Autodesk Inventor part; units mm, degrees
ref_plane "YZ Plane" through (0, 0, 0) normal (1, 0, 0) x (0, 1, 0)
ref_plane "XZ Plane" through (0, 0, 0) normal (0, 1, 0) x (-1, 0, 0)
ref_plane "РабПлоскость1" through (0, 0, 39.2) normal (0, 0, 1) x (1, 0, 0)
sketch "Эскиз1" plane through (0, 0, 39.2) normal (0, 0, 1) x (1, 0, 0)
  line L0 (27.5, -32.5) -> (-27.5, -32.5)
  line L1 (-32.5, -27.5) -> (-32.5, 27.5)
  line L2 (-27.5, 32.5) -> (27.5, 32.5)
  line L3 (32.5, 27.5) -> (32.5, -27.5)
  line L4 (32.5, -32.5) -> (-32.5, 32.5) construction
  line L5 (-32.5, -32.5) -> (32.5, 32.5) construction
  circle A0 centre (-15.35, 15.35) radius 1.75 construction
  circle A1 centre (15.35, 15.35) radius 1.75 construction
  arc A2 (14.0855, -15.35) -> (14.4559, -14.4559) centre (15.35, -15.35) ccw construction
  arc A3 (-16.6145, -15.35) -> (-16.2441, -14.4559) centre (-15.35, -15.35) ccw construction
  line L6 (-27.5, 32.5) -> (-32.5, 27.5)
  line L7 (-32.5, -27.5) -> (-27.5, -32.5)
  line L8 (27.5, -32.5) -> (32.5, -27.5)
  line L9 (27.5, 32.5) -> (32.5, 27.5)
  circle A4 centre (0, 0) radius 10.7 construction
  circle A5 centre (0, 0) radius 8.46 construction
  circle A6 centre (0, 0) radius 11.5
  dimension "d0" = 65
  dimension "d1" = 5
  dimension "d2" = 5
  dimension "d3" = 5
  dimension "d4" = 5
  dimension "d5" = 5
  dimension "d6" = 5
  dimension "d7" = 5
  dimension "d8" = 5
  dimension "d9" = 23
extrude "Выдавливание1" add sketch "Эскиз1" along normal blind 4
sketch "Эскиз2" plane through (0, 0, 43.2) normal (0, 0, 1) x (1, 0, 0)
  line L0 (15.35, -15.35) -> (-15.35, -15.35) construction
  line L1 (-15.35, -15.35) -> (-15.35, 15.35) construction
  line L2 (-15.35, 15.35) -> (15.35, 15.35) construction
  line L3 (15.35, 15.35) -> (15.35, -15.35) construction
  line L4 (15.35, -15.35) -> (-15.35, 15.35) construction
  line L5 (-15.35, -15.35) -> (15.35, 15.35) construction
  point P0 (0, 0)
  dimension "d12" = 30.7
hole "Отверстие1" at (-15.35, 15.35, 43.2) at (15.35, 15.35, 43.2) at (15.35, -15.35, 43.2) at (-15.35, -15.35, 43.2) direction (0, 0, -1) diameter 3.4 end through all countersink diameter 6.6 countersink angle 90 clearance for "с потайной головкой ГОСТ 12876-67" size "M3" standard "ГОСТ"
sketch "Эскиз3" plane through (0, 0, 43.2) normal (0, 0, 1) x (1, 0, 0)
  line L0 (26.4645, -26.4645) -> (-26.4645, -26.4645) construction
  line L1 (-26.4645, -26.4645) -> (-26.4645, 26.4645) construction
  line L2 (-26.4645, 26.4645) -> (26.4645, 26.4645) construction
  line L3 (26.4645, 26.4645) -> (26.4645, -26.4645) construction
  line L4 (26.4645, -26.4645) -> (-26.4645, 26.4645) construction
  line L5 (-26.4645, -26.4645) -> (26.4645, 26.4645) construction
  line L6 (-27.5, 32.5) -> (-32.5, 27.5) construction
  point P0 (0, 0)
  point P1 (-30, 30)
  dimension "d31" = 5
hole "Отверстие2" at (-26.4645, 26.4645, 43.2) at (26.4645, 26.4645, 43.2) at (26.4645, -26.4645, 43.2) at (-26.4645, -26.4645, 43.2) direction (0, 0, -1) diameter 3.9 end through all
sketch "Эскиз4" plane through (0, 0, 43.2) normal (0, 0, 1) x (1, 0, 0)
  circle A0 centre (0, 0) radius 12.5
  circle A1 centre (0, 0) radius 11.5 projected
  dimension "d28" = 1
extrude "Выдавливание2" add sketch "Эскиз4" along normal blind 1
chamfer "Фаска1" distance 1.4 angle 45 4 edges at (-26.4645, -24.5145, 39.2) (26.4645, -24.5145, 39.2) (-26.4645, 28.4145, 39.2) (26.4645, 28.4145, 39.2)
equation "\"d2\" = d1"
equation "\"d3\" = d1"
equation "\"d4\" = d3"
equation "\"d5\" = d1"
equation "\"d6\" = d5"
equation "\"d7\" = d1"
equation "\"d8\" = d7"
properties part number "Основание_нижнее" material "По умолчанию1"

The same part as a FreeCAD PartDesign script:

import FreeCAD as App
import Part
import Sketcher


def edges_at(feature, points):
    """Names of the edges that pass closest to the given points."""
    edges = feature.Shape.Edges
    near = lambda p: min(range(len(edges)), key=lambda i: edges[i].distToShape(Part.Vertex(*p))[0])
    return sorted({f"Edge{near(p) + 1}" for p in points})


def add_polygon(sketch, points):
    """Adds a closed chain of lines whose ends are joined by coincident constraints."""
    first, n = sketch.GeometryCount, len(points)
    for a, b in zip(points, points[1:] + points[:1]):
        sketch.addGeometry(Part.LineSegment(App.Vector(*a, 0), App.Vector(*b, 0)), False)
    for i in range(n):
        sketch.addConstraint(Sketcher.Constraint("Coincident", first + i, 2, first + (i + 1) % n, 1))

doc = App.newDocument("Part")
body = doc.addObject("PartDesign::Body", "Body")

sketch1 = doc.addObject("Sketcher::SketchObject", "Sketch")
body.addObject(sketch1)
sketch1.AttachmentSupport = (doc.XY_Plane, [""])
sketch1.MapMode = "FlatFace"
sketch1.AttachmentOffset = App.Placement(App.Vector(0, 0, 39.2), App.Rotation())
add_polygon(sketch1, [(-28, -32), (28, -32), (32, -28), (32, 28), (28, 32), (-28, 32), (-32, 28), (-32, -28)])
sketch1.addGeometry(Part.Circle(App.Vector(0, 0, 0), App.Vector(0, 0, 1), 12), False)
sketch1.addConstraint(Sketcher.Constraint("Horizontal", 0))
sketch1.addConstraint(Sketcher.Constraint("Vertical", 2))
sketch1.addConstraint(Sketcher.Constraint("Horizontal", 4))
sketch1.addConstraint(Sketcher.Constraint("Vertical", 6))
sketch1.addConstraint(Sketcher.Constraint("Coincident", 8, 3, -1, 1))
sketch1.addConstraint(Sketcher.Constraint("Symmetric", 0, 2, 4, 2, -1, 1))
sketch1.addConstraint(Sketcher.Constraint("Symmetric", 1, 2, 5, 2, -1, 1))
sketch1.addConstraint(Sketcher.Constraint("Perpendicular", 1, 3))
sketch1.addConstraint(Sketcher.Constraint("Perpendicular", 5, 7))
sketch1.addConstraint(Sketcher.Constraint("Horizontal", 2, 2, 5, 2))
sketch1.addConstraint(Sketcher.Constraint("Horizontal", 1, 2, 6, 2))
sketch1.addConstraint(Sketcher.Constraint("Vertical", 0, 2, 3, 2))
sketch1.addConstraint(Sketcher.Constraint("Equal", 4, 2))
sketch1.addConstraint(Sketcher.Constraint("Diameter", 8, 23.0))
sketch1.addConstraint(Sketcher.Constraint("DistanceX", 0, 2, 1, 2, 5.0))
sketch1.addConstraint(Sketcher.Constraint("DistanceY", 0, 2, 3, 2, 65.0))
pad1 = doc.addObject("PartDesign::Pad", "Pad")
body.addObject(pad1)
pad1.Profile = sketch1
pad1.Length = 4

sketch2 = doc.addObject("Sketcher::SketchObject", "Sketch001")
body.addObject(sketch2)
sketch2.AttachmentSupport = (doc.XY_Plane, [""])
sketch2.MapMode = "FlatFace"
sketch2.AttachmentOffset = App.Placement(App.Vector(0, 0, 43.2), App.Rotation())
sketch2.addGeometry(Part.Circle(App.Vector(-15.3, 15.3, 0), App.Vector(0, 0, 1), 1.7), False)
sketch2.addGeometry(Part.Circle(App.Vector(15.3, 15.3, 0), App.Vector(0, 0, 1), 1.7), False)
sketch2.addGeometry(Part.Circle(App.Vector(15.3, -15.3, 0), App.Vector(0, 0, 1), 1.7), False)
sketch2.addGeometry(Part.Circle(App.Vector(-15.3, -15.3, 0), App.Vector(0, 0, 1), 1.7), False)
sketch2.addConstraint(Sketcher.Constraint("Equal", 0, 1))
sketch2.addConstraint(Sketcher.Constraint("Equal", 1, 2))
sketch2.addConstraint(Sketcher.Constraint("Equal", 2, 3))
sketch2.addConstraint(Sketcher.Constraint("Symmetric", 0, 3, 2, 3, -1, 1))
sketch2.addConstraint(Sketcher.Constraint("Symmetric", 1, 3, 3, 3, -1, 1))
sketch2.addConstraint(Sketcher.Constraint("Symmetric", 0, 3, 1, 3, -2))
sketch2.addConstraint(Sketcher.Constraint("Diameter", 0, 3.4))
sketch2.addConstraint(Sketcher.Constraint("DistanceX", 0, 3, 1, 3, 30.7))
sketch2.addConstraint(Sketcher.Constraint("DistanceY", 2, 3, 1, 3, 30.7))
doc.recompute()
hole = doc.addObject("PartDesign::Hole", "Hole")
body.addObject(hole)
hole.Profile = sketch2
hole.ThreadType = "None"
hole.Diameter = 3.4
hole.DepthType = "ThroughAll"
hole.HoleCutType = "Countersink"
hole.HoleCutDiameter = 6.6
hole.HoleCutCountersinkAngle = 90

sketch3 = doc.addObject("Sketcher::SketchObject", "Sketch002")
body.addObject(sketch3)
sketch3.AttachmentSupport = (doc.XY_Plane, [""])
sketch3.MapMode = "FlatFace"
sketch3.AttachmentOffset = App.Placement(App.Vector(0, 0, 43.2), App.Rotation())
sketch3.addGeometry(Part.Circle(App.Vector(-26.5, 26.5, 0), App.Vector(0, 0, 1), 1.9), False)
sketch3.addGeometry(Part.Circle(App.Vector(26.5, 26.5, 0), App.Vector(0, 0, 1), 1.9), False)
sketch3.addGeometry(Part.Circle(App.Vector(26.5, -26.5, 0), App.Vector(0, 0, 1), 1.9), False)
sketch3.addGeometry(Part.Circle(App.Vector(-26.5, -26.5, 0), App.Vector(0, 0, 1), 1.9), False)
sketch3.addConstraint(Sketcher.Constraint("Equal", 0, 1))
sketch3.addConstraint(Sketcher.Constraint("Equal", 1, 2))
sketch3.addConstraint(Sketcher.Constraint("Equal", 2, 3))
sketch3.addConstraint(Sketcher.Constraint("Symmetric", 0, 3, 2, 3, -1, 1))
sketch3.addConstraint(Sketcher.Constraint("Symmetric", 1, 3, 3, 3, -1, 1))
sketch3.addConstraint(Sketcher.Constraint("Symmetric", 0, 3, 1, 3, -2))
sketch3.addConstraint(Sketcher.Constraint("Diameter", 0, 3.9))
sketch3.addConstraint(Sketcher.Constraint("DistanceX", 0, 3, 1, 3, 52.929))
sketch3.addConstraint(Sketcher.Constraint("DistanceY", 2, 3, 1, 3, 52.929))
doc.recompute()
hole2 = doc.addObject("PartDesign::Hole", "Hole001")
body.addObject(hole2)
hole2.Profile = sketch3
hole2.ThreadType = "None"
hole2.Diameter = 3.9
hole2.DepthType = "ThroughAll"

sketch4 = doc.addObject("Sketcher::SketchObject", "Sketch003")
body.addObject(sketch4)
sketch4.AttachmentSupport = (doc.XY_Plane, [""])
sketch4.MapMode = "FlatFace"
sketch4.AttachmentOffset = App.Placement(App.Vector(0, 0, 43.2), App.Rotation())
sketch4.addGeometry(Part.Circle(App.Vector(0, 0, 0), App.Vector(0, 0, 1), 12), False)
sketch4.addGeometry(Part.Circle(App.Vector(0, 0, 0), App.Vector(0, 0, 1), 12), False)
sketch4.addConstraint(Sketcher.Constraint("Coincident", 0, 3, -1, 1))
sketch4.addConstraint(Sketcher.Constraint("Coincident", 1, 3, -1, 1))
sketch4.addConstraint(Sketcher.Constraint("Diameter", 0, 25.0))
sketch4.addConstraint(Sketcher.Constraint("Diameter", 1, 23.0))
pad2 = doc.addObject("PartDesign::Pad", "Pad001")
body.addObject(pad2)
pad2.Profile = sketch4
pad2.Length = 1
doc.recompute()

chamfer = doc.addObject("PartDesign::Chamfer", "Chamfer")
body.addObject(chamfer)
chamfer.Base = (pad2, edges_at(pad2, [
    (-26.465, -24.515, 39.2),
    (26.465, -24.515, 39.2),
    (-26.465, 28.415, 39.2),
    (26.465, 28.415, 39.2),
]))
chamfer.Size = 1.4

doc.recompute()
